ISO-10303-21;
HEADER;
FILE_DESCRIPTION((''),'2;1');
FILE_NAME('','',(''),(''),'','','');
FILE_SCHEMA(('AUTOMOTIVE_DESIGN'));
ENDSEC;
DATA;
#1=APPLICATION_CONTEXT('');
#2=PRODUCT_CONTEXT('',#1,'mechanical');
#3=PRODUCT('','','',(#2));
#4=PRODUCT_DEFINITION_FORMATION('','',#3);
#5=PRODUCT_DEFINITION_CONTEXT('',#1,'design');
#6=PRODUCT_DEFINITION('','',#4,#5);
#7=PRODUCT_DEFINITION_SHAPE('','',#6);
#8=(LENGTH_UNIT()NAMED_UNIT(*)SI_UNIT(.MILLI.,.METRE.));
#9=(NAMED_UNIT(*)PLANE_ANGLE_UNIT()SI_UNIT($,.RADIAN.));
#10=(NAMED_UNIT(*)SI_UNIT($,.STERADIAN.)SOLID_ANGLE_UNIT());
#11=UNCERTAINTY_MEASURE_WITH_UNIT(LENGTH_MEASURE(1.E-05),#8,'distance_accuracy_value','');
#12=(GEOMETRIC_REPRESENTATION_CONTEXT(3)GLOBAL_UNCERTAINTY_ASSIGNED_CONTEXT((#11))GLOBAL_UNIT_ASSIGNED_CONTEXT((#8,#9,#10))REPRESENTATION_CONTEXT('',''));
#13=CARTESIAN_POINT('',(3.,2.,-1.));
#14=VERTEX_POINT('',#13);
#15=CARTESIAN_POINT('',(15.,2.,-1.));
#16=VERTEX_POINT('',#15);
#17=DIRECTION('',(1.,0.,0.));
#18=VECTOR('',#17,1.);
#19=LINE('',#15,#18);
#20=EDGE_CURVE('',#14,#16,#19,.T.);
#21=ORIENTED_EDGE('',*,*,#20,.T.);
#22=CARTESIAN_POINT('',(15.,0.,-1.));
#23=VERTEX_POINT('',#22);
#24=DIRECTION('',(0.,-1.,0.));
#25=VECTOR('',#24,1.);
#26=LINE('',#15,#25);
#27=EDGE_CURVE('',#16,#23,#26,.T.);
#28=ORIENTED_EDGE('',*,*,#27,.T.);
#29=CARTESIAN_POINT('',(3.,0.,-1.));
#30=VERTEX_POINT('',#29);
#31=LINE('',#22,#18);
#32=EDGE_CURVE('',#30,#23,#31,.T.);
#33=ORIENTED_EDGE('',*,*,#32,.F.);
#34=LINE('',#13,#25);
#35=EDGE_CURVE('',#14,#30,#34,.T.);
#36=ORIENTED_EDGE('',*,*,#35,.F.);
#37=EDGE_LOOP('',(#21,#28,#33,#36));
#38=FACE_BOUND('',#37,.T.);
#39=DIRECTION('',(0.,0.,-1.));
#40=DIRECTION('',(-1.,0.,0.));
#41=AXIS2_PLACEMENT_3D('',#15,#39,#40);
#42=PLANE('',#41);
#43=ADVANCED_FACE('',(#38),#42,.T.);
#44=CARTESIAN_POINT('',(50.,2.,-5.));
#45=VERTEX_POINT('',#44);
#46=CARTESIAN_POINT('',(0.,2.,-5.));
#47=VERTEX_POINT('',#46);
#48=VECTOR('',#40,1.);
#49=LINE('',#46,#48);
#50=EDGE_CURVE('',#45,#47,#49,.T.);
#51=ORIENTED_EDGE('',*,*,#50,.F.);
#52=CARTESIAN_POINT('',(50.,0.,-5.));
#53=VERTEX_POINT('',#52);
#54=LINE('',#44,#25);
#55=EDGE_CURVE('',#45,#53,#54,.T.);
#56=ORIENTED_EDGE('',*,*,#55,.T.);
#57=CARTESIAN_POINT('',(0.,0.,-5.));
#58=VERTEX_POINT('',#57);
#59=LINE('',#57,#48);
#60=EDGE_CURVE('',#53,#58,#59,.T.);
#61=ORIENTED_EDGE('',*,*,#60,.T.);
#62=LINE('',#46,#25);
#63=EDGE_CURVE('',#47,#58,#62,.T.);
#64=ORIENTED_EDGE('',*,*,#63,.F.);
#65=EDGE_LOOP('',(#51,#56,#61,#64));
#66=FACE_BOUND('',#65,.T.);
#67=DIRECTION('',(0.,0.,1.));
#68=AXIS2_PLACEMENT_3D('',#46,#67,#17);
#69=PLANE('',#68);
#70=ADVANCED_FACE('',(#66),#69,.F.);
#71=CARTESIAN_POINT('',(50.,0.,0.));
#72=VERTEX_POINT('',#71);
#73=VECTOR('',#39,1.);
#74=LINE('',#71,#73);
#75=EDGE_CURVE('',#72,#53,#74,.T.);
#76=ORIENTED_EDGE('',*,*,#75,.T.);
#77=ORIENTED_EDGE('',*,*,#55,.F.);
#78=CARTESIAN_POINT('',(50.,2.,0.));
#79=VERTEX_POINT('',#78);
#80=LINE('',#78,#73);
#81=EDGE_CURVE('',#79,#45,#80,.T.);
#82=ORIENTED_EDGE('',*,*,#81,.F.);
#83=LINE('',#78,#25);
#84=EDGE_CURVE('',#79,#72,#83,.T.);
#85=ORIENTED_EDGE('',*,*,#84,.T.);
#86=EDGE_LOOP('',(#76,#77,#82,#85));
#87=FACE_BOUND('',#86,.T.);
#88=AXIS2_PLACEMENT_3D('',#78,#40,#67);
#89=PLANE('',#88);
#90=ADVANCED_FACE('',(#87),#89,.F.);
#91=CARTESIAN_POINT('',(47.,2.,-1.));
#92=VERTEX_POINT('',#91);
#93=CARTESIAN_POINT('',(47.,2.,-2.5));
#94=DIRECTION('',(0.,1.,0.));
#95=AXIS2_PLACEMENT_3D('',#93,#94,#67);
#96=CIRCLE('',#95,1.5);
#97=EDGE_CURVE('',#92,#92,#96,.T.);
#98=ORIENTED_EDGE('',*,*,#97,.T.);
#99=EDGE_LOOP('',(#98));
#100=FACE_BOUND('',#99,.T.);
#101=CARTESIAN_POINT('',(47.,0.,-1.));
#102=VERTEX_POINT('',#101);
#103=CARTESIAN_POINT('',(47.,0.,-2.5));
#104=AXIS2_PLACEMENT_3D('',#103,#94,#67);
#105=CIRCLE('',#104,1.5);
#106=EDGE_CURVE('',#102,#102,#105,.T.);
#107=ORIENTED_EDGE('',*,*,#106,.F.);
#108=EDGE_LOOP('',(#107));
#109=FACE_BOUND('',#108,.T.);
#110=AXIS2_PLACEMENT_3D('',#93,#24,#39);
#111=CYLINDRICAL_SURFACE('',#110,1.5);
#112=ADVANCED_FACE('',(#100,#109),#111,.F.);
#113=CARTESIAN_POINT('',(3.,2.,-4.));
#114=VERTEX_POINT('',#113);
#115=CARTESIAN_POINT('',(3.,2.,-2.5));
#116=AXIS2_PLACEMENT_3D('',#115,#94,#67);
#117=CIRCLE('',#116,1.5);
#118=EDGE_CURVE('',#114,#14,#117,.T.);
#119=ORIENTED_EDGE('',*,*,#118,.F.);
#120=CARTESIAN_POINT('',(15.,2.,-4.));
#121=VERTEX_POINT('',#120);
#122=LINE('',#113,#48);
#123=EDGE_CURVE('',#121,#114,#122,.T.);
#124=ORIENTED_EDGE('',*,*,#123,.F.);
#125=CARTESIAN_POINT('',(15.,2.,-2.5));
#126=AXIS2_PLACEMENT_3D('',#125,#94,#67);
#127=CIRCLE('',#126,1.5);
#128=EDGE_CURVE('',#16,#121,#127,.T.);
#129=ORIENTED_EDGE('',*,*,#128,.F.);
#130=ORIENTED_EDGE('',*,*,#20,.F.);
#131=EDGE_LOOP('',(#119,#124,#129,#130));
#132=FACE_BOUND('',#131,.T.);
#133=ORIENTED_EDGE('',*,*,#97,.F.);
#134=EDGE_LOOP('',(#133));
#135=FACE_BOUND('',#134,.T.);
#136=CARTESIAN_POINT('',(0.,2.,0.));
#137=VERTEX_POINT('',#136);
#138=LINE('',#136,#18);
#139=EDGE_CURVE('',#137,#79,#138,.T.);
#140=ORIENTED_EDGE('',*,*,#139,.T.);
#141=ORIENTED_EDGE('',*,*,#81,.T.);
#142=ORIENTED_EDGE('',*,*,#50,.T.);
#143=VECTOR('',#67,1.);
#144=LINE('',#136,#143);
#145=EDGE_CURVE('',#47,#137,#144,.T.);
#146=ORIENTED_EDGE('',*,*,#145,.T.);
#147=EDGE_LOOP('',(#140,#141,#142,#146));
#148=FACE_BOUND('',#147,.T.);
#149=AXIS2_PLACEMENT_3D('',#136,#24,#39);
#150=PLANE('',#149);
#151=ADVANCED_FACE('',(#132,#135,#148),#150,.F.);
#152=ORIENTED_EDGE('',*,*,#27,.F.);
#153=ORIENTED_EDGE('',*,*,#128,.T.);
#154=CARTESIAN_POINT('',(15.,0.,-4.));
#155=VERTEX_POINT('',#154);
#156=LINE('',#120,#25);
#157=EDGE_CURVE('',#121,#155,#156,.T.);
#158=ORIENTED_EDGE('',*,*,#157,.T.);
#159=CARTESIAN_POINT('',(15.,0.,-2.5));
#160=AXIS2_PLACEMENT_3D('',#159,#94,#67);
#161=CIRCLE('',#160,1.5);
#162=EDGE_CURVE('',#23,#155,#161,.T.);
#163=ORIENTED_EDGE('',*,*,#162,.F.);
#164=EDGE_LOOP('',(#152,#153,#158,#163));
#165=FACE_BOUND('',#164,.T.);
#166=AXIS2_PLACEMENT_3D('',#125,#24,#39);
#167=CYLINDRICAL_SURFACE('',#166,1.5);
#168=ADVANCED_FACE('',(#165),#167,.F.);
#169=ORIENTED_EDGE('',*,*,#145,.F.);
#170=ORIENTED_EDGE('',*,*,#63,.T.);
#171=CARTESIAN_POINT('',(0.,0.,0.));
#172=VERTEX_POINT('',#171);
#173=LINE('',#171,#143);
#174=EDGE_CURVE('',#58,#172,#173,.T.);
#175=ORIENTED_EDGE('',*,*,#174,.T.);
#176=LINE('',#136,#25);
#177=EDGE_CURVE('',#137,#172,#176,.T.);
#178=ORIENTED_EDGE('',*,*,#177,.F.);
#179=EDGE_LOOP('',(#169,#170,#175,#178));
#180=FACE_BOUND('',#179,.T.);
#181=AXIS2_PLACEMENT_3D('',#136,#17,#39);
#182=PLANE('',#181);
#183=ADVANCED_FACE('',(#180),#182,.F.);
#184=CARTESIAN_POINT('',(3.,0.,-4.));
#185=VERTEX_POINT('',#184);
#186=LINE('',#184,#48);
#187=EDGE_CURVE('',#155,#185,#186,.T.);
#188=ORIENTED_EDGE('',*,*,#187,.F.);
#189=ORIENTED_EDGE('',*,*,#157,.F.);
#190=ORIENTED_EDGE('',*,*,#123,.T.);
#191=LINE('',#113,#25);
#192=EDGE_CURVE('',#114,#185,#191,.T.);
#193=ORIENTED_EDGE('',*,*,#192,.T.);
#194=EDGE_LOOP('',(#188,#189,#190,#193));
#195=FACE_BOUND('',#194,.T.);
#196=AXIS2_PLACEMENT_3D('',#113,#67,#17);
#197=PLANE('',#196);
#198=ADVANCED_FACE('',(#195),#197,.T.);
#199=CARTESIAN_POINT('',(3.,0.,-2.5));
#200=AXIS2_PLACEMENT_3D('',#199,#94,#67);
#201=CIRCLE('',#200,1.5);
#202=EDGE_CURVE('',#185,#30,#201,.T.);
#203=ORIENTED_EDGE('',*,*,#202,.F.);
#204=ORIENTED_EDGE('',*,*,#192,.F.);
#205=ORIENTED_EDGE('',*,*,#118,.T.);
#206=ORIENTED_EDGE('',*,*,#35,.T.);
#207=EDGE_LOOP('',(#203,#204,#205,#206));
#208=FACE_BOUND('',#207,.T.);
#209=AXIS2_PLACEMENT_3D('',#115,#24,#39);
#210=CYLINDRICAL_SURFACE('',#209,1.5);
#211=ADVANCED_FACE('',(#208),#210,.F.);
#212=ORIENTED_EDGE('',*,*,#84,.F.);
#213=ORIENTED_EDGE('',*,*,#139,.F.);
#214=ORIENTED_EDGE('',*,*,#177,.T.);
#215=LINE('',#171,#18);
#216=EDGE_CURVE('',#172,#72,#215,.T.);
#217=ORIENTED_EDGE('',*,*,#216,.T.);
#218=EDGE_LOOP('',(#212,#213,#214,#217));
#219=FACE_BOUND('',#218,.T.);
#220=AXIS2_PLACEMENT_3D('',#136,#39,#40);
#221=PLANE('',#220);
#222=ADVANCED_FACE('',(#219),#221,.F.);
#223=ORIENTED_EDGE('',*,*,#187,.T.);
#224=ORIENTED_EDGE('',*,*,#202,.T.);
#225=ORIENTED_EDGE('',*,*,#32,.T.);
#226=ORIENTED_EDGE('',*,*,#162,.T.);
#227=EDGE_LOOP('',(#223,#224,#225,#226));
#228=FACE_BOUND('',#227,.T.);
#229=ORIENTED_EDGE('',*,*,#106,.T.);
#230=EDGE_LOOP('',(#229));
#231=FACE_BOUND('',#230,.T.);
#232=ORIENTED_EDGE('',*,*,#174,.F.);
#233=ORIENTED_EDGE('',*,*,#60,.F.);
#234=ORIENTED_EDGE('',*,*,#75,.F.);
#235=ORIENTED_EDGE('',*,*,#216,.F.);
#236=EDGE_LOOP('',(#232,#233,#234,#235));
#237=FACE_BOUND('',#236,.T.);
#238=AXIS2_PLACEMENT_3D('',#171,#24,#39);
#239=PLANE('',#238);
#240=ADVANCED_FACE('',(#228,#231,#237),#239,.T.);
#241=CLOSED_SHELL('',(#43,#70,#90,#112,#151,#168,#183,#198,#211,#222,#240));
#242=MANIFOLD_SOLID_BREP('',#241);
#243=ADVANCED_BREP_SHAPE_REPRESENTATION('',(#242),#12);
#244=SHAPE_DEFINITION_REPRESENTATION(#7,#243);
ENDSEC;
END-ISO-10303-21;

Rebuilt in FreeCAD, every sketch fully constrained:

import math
import FreeCAD as App
import Part
import Sketcher
Q = App.Units.Quantity


def add_polygon(sketch, points):
    """Adds a closed chain of lines whose ends are joined by coincident constraints."""
    first, n = sketch.GeometryCount, len(points)
    for a, b in zip(points, points[1:] + points[:1]):
        sketch.addGeometry(Part.LineSegment(App.Vector(*a, 0), App.Vector(*b, 0)), False)
    for i in range(n):
        sketch.addConstraint(Sketcher.Constraint("Coincident", first + i, 2, first + (i + 1) % n, 1))

doc = App.newDocument("Part")
body = doc.addObject("PartDesign::Body", "Body")

# Sketch on XZ plane
sketch1 = body.newObject("Sketcher::SketchObject", "Sketch")
sketch1.AttachmentSupport = (doc.getObject("XZ_Plane"), [""])
sketch1.MapMode = "FlatFace"
add_polygon(sketch1, [(0, -5), (0, 0), (50, 0), (50, -5)])  # lines 0-3
sketch1.addGeometry(Part.ArcOfCircle(Part.Circle(App.Vector(3, -2.5, 0), App.Vector(0, 0, 1), 1.5), math.radians(90), math.radians(270)), False)  # 4
sketch1.addGeometry(Part.LineSegment(App.Vector(3, -4, 0), App.Vector(15, -4, 0)), False)  # 5
sketch1.addGeometry(Part.ArcOfCircle(Part.Circle(App.Vector(15, -2.5, 0), App.Vector(0, 0, 1), 1.5), math.radians(-90), math.radians(90)), False)  # 6
sketch1.addGeometry(Part.LineSegment(App.Vector(15, -1, 0), App.Vector(3, -1, 0)), False)  # 7
sketch1.addGeometry(Part.Circle(App.Vector(47, -2.5, 0), App.Vector(0, 0, 1), 1.5), False)  # 8
sketch1.addConstraint(Sketcher.Constraint("Tangent", 4, 2, 5, 1))
sketch1.addConstraint(Sketcher.Constraint("Tangent", 5, 2, 6, 1))
sketch1.addConstraint(Sketcher.Constraint("Tangent", 6, 2, 7, 1))
sketch1.addConstraint(Sketcher.Constraint("Tangent", 7, 2, 4, 1))
sketch1.addConstraint(Sketcher.Constraint("Vertical", 0))
sketch1.addConstraint(Sketcher.Constraint("Horizontal", 1))
sketch1.addConstraint(Sketcher.Constraint("Vertical", 2))
sketch1.addConstraint(Sketcher.Constraint("Horizontal", 3))
sketch1.addConstraint(Sketcher.Constraint("Horizontal", 5))
sketch1.addConstraint(Sketcher.Constraint("Horizontal", 7))
sketch1.addConstraint(Sketcher.Constraint("Coincident", 0, 2, -1, 1))
sketch1.addConstraint(Sketcher.Constraint("Equal", 6, 8))
sketch1.addConstraint(Sketcher.Constraint("Horizontal", 6, 3, 8, 3))
sketch1.addConstraint(Sketcher.Constraint("Diameter", 8, Q("3 mm")))
sketch1.addConstraint(Sketcher.Constraint("DistanceX", 1, 1, 1, 2, Q("50 mm")))
sketch1.addConstraint(Sketcher.Constraint("DistanceX", 5, 1, 5, 2, Q("12 mm")))
sketch1.addConstraint(Sketcher.Constraint("DistanceY", 0, 1, 0, 2, Q("5 mm")))
sketch1.addConstraint(Sketcher.Constraint("DistanceX", -1, 1, 4, 3, Q("3 mm")))
sketch1.addConstraint(Sketcher.Constraint("DistanceX", -1, 1, 8, 3, Q("47 mm")))
sketch1.addConstraint(Sketcher.Constraint("DistanceY", 4, 2, -1, 1, Q("4 mm")))
pad1 = body.newObject("PartDesign::Pad", "Pad")
pad1.Profile = sketch1
pad1.Length = 2
pad1.Reversed = True

doc.recompute()
